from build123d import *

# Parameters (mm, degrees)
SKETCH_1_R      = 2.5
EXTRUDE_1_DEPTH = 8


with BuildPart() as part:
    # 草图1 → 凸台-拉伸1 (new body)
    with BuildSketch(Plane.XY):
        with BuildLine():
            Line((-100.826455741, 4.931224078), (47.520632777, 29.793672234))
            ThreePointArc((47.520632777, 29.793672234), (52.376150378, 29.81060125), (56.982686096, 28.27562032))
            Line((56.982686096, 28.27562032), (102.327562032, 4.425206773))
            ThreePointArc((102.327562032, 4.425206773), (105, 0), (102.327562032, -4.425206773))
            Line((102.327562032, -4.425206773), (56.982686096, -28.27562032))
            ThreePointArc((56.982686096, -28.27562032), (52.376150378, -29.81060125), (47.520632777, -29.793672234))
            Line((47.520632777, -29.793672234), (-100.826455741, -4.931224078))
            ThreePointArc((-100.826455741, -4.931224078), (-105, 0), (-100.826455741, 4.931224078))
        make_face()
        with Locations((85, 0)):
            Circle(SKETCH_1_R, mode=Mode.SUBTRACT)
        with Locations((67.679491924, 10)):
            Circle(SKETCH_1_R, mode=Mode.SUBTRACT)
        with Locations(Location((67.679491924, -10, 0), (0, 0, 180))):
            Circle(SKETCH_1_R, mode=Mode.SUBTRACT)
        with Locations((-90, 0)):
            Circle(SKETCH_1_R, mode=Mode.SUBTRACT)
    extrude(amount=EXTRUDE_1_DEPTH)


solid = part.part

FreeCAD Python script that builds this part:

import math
import FreeCAD as App
import Part
import Sketcher
from FreeCAD import Vector

doc = App.newDocument("Part")
params = doc.addObject("Spreadsheet::Sheet", "Params")
for row, (alias, value) in enumerate([
    ("sketch1_diameter", "5 mm"),
    ("sketch1_radius", "5 mm"),
    ("sketch1_radius2", "15 mm"),
    ("pad1_length", "8 mm"),
], start=1):
    params.set(f"A{row}", alias)
    params.set(f"B{row}", "=" + value)
    params.setAlias(f"B{row}", alias)

body = doc.addObject("PartDesign::Body", "Body")

sketch1 = doc.addObject("Sketcher::SketchObject", "Sketch")
body.addObject(sketch1)
sketch1.AttachmentSupport = (doc.XY_Plane, [""])
sketch1.MapMode = "FlatFace"
sketch1.addGeometry([
    Part.LineSegment(Vector(47.5, 29.8, 0), Vector(-100.8, 4.9, 0)),
    Part.ArcOfCircle(Part.Circle(Vector(-100, 0, 0), Vector(0, 0, 1), 5), math.radians(100), math.radians(260)),
    Part.LineSegment(Vector(-100.8, -4.9, 0), Vector(47.5, -29.8, 0)),
    Part.ArcOfCircle(Part.Circle(Vector(50, -15, 0), Vector(0, 0, 1), 15), math.radians(-100), math.radians(-62)),
    Part.LineSegment(Vector(57, -28.3, 0), Vector(102.3, -4.4, 0)),
    Part.ArcOfCircle(Part.Circle(Vector(100, 0, 0), Vector(0, 0, 1), 5), math.radians(-62), math.radians(62)),
    Part.LineSegment(Vector(102.3, 4.4, 0), Vector(57, 28.3, 0)),
    Part.ArcOfCircle(Part.Circle(Vector(50, 15, 0), Vector(0, 0, 1), 15), math.radians(62), math.radians(100)),
    Part.Circle(Vector(67.7, -10, 0), Vector(0, 0, 1), 2.5),
    Part.Circle(Vector(85, 0, 0), Vector(0, 0, 1), 2.5),
    Part.Circle(Vector(67.7, 10, 0), Vector(0, 0, 1), 2.5),
    Part.Circle(Vector(-90, 0, 0), Vector(0, 0, 1), 2.5),
], False)
sketch1.addConstraint([
    Sketcher.Constraint("Tangent", 0, 2, 1, 1),
    Sketcher.Constraint("Tangent", 1, 2, 2, 1),
    Sketcher.Constraint("Tangent", 2, 2, 3, 1),
    Sketcher.Constraint("Tangent", 3, 2, 4, 1),
    Sketcher.Constraint("Tangent", 4, 2, 5, 1),
    Sketcher.Constraint("Tangent", 5, 2, 6, 1),
    Sketcher.Constraint("Tangent", 6, 2, 7, 1),
    Sketcher.Constraint("Tangent", 7, 2, 0, 1),
    Sketcher.Constraint("Equal", 1, 5),
    Sketcher.Constraint("Equal", 3, 7),
    Sketcher.Constraint("Equal", 8, 9),
    Sketcher.Constraint("Equal", 9, 10),
    Sketcher.Constraint("Equal", 10, 11),
    Sketcher.Constraint("Symmetric", 1, 3, 5, 3, -1, 1),
    Sketcher.Constraint("Symmetric", 3, 3, 7, 3, -1),
    Sketcher.Constraint("Symmetric", 8, 3, 10, 3, -1),
    Sketcher.Constraint("PointOnObject", 1, 3, -1),
    Sketcher.Constraint("PointOnObject", 9, 3, -1),
    Sketcher.Constraint("PointOnObject", 11, 3, -1),
    Sketcher.Constraint("Diameter", 8, 5.0),
    Sketcher.Constraint("Radius", 1, 5.0),
    Sketcher.Constraint("Radius", 3, 15.0),
    Sketcher.Constraint("DistanceX", 1, 3, -1, 1, 100.0),
    Sketcher.Constraint("DistanceX", -1, 1, 3, 3, 50.0),
    Sketcher.Constraint("DistanceY", 3, 3, -1, 1, 15.0),
    Sketcher.Constraint("DistanceY", 8, 3, -1, 1, 10.0),
    Sketcher.Constraint("DistanceX", -1, 1, 9, 3, 85.0),
    Sketcher.Constraint("DistanceX", 11, 3, -1, 1, 90.0),
    Sketcher.Constraint("DistanceX", -1, 1, 8, 3, 67.679492),
])
sketch1.setExpression("Constraints[19]", "Params.sketch1_diameter")
sketch1.setExpression("Constraints[20]", "Params.sketch1_radius")
sketch1.setExpression("Constraints[21]", "Params.sketch1_radius2")
pad1 = doc.addObject("PartDesign::Pad", "Pad")
body.addObject(pad1)
pad1.Profile = sketch1
pad1.setExpression("Length", "Params.pad1_length")

doc.recompute()
